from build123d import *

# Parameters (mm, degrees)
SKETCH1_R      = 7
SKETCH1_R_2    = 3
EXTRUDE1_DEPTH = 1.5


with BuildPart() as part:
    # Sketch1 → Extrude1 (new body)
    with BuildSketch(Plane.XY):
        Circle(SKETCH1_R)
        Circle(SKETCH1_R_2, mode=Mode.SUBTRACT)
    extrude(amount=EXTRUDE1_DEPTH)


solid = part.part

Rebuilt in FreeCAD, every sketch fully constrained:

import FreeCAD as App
import Part
import Sketcher
from FreeCAD import Vector
Q = App.Units.Quantity

doc = App.newDocument("Part")
body = doc.addObject("PartDesign::Body", "Body")

# Sketch on XY plane
sketch1 = body.newObject("Sketcher::SketchObject", "Sketch")
sketch1.AttachmentSupport = (doc.getObject("XY_Plane"), [""])
sketch1.MapMode = "FlatFace"
sketch1.addGeometry(Part.Circle(Vector(0, 0, 0), Vector(0, 0, 1), 7), False)
sketch1.addGeometry(Part.Circle(Vector(0, 0, 0), Vector(0, 0, 1), 3), False)
sketch1.addConstraint(Sketcher.Constraint("Coincident", 0, 3, -1, 1))
sketch1.addConstraint(Sketcher.Constraint("Coincident", 1, 3, -1, 1))
sketch1.addConstraint(Sketcher.Constraint("Diameter", 0, Q("14 mm")))
sketch1.addConstraint(Sketcher.Constraint("Diameter", 1, Q("6 mm")))
pad1 = body.newObject("PartDesign::Pad", "Pad")
pad1.Profile = sketch1
pad1.Length = 1.5

doc.recompute()
